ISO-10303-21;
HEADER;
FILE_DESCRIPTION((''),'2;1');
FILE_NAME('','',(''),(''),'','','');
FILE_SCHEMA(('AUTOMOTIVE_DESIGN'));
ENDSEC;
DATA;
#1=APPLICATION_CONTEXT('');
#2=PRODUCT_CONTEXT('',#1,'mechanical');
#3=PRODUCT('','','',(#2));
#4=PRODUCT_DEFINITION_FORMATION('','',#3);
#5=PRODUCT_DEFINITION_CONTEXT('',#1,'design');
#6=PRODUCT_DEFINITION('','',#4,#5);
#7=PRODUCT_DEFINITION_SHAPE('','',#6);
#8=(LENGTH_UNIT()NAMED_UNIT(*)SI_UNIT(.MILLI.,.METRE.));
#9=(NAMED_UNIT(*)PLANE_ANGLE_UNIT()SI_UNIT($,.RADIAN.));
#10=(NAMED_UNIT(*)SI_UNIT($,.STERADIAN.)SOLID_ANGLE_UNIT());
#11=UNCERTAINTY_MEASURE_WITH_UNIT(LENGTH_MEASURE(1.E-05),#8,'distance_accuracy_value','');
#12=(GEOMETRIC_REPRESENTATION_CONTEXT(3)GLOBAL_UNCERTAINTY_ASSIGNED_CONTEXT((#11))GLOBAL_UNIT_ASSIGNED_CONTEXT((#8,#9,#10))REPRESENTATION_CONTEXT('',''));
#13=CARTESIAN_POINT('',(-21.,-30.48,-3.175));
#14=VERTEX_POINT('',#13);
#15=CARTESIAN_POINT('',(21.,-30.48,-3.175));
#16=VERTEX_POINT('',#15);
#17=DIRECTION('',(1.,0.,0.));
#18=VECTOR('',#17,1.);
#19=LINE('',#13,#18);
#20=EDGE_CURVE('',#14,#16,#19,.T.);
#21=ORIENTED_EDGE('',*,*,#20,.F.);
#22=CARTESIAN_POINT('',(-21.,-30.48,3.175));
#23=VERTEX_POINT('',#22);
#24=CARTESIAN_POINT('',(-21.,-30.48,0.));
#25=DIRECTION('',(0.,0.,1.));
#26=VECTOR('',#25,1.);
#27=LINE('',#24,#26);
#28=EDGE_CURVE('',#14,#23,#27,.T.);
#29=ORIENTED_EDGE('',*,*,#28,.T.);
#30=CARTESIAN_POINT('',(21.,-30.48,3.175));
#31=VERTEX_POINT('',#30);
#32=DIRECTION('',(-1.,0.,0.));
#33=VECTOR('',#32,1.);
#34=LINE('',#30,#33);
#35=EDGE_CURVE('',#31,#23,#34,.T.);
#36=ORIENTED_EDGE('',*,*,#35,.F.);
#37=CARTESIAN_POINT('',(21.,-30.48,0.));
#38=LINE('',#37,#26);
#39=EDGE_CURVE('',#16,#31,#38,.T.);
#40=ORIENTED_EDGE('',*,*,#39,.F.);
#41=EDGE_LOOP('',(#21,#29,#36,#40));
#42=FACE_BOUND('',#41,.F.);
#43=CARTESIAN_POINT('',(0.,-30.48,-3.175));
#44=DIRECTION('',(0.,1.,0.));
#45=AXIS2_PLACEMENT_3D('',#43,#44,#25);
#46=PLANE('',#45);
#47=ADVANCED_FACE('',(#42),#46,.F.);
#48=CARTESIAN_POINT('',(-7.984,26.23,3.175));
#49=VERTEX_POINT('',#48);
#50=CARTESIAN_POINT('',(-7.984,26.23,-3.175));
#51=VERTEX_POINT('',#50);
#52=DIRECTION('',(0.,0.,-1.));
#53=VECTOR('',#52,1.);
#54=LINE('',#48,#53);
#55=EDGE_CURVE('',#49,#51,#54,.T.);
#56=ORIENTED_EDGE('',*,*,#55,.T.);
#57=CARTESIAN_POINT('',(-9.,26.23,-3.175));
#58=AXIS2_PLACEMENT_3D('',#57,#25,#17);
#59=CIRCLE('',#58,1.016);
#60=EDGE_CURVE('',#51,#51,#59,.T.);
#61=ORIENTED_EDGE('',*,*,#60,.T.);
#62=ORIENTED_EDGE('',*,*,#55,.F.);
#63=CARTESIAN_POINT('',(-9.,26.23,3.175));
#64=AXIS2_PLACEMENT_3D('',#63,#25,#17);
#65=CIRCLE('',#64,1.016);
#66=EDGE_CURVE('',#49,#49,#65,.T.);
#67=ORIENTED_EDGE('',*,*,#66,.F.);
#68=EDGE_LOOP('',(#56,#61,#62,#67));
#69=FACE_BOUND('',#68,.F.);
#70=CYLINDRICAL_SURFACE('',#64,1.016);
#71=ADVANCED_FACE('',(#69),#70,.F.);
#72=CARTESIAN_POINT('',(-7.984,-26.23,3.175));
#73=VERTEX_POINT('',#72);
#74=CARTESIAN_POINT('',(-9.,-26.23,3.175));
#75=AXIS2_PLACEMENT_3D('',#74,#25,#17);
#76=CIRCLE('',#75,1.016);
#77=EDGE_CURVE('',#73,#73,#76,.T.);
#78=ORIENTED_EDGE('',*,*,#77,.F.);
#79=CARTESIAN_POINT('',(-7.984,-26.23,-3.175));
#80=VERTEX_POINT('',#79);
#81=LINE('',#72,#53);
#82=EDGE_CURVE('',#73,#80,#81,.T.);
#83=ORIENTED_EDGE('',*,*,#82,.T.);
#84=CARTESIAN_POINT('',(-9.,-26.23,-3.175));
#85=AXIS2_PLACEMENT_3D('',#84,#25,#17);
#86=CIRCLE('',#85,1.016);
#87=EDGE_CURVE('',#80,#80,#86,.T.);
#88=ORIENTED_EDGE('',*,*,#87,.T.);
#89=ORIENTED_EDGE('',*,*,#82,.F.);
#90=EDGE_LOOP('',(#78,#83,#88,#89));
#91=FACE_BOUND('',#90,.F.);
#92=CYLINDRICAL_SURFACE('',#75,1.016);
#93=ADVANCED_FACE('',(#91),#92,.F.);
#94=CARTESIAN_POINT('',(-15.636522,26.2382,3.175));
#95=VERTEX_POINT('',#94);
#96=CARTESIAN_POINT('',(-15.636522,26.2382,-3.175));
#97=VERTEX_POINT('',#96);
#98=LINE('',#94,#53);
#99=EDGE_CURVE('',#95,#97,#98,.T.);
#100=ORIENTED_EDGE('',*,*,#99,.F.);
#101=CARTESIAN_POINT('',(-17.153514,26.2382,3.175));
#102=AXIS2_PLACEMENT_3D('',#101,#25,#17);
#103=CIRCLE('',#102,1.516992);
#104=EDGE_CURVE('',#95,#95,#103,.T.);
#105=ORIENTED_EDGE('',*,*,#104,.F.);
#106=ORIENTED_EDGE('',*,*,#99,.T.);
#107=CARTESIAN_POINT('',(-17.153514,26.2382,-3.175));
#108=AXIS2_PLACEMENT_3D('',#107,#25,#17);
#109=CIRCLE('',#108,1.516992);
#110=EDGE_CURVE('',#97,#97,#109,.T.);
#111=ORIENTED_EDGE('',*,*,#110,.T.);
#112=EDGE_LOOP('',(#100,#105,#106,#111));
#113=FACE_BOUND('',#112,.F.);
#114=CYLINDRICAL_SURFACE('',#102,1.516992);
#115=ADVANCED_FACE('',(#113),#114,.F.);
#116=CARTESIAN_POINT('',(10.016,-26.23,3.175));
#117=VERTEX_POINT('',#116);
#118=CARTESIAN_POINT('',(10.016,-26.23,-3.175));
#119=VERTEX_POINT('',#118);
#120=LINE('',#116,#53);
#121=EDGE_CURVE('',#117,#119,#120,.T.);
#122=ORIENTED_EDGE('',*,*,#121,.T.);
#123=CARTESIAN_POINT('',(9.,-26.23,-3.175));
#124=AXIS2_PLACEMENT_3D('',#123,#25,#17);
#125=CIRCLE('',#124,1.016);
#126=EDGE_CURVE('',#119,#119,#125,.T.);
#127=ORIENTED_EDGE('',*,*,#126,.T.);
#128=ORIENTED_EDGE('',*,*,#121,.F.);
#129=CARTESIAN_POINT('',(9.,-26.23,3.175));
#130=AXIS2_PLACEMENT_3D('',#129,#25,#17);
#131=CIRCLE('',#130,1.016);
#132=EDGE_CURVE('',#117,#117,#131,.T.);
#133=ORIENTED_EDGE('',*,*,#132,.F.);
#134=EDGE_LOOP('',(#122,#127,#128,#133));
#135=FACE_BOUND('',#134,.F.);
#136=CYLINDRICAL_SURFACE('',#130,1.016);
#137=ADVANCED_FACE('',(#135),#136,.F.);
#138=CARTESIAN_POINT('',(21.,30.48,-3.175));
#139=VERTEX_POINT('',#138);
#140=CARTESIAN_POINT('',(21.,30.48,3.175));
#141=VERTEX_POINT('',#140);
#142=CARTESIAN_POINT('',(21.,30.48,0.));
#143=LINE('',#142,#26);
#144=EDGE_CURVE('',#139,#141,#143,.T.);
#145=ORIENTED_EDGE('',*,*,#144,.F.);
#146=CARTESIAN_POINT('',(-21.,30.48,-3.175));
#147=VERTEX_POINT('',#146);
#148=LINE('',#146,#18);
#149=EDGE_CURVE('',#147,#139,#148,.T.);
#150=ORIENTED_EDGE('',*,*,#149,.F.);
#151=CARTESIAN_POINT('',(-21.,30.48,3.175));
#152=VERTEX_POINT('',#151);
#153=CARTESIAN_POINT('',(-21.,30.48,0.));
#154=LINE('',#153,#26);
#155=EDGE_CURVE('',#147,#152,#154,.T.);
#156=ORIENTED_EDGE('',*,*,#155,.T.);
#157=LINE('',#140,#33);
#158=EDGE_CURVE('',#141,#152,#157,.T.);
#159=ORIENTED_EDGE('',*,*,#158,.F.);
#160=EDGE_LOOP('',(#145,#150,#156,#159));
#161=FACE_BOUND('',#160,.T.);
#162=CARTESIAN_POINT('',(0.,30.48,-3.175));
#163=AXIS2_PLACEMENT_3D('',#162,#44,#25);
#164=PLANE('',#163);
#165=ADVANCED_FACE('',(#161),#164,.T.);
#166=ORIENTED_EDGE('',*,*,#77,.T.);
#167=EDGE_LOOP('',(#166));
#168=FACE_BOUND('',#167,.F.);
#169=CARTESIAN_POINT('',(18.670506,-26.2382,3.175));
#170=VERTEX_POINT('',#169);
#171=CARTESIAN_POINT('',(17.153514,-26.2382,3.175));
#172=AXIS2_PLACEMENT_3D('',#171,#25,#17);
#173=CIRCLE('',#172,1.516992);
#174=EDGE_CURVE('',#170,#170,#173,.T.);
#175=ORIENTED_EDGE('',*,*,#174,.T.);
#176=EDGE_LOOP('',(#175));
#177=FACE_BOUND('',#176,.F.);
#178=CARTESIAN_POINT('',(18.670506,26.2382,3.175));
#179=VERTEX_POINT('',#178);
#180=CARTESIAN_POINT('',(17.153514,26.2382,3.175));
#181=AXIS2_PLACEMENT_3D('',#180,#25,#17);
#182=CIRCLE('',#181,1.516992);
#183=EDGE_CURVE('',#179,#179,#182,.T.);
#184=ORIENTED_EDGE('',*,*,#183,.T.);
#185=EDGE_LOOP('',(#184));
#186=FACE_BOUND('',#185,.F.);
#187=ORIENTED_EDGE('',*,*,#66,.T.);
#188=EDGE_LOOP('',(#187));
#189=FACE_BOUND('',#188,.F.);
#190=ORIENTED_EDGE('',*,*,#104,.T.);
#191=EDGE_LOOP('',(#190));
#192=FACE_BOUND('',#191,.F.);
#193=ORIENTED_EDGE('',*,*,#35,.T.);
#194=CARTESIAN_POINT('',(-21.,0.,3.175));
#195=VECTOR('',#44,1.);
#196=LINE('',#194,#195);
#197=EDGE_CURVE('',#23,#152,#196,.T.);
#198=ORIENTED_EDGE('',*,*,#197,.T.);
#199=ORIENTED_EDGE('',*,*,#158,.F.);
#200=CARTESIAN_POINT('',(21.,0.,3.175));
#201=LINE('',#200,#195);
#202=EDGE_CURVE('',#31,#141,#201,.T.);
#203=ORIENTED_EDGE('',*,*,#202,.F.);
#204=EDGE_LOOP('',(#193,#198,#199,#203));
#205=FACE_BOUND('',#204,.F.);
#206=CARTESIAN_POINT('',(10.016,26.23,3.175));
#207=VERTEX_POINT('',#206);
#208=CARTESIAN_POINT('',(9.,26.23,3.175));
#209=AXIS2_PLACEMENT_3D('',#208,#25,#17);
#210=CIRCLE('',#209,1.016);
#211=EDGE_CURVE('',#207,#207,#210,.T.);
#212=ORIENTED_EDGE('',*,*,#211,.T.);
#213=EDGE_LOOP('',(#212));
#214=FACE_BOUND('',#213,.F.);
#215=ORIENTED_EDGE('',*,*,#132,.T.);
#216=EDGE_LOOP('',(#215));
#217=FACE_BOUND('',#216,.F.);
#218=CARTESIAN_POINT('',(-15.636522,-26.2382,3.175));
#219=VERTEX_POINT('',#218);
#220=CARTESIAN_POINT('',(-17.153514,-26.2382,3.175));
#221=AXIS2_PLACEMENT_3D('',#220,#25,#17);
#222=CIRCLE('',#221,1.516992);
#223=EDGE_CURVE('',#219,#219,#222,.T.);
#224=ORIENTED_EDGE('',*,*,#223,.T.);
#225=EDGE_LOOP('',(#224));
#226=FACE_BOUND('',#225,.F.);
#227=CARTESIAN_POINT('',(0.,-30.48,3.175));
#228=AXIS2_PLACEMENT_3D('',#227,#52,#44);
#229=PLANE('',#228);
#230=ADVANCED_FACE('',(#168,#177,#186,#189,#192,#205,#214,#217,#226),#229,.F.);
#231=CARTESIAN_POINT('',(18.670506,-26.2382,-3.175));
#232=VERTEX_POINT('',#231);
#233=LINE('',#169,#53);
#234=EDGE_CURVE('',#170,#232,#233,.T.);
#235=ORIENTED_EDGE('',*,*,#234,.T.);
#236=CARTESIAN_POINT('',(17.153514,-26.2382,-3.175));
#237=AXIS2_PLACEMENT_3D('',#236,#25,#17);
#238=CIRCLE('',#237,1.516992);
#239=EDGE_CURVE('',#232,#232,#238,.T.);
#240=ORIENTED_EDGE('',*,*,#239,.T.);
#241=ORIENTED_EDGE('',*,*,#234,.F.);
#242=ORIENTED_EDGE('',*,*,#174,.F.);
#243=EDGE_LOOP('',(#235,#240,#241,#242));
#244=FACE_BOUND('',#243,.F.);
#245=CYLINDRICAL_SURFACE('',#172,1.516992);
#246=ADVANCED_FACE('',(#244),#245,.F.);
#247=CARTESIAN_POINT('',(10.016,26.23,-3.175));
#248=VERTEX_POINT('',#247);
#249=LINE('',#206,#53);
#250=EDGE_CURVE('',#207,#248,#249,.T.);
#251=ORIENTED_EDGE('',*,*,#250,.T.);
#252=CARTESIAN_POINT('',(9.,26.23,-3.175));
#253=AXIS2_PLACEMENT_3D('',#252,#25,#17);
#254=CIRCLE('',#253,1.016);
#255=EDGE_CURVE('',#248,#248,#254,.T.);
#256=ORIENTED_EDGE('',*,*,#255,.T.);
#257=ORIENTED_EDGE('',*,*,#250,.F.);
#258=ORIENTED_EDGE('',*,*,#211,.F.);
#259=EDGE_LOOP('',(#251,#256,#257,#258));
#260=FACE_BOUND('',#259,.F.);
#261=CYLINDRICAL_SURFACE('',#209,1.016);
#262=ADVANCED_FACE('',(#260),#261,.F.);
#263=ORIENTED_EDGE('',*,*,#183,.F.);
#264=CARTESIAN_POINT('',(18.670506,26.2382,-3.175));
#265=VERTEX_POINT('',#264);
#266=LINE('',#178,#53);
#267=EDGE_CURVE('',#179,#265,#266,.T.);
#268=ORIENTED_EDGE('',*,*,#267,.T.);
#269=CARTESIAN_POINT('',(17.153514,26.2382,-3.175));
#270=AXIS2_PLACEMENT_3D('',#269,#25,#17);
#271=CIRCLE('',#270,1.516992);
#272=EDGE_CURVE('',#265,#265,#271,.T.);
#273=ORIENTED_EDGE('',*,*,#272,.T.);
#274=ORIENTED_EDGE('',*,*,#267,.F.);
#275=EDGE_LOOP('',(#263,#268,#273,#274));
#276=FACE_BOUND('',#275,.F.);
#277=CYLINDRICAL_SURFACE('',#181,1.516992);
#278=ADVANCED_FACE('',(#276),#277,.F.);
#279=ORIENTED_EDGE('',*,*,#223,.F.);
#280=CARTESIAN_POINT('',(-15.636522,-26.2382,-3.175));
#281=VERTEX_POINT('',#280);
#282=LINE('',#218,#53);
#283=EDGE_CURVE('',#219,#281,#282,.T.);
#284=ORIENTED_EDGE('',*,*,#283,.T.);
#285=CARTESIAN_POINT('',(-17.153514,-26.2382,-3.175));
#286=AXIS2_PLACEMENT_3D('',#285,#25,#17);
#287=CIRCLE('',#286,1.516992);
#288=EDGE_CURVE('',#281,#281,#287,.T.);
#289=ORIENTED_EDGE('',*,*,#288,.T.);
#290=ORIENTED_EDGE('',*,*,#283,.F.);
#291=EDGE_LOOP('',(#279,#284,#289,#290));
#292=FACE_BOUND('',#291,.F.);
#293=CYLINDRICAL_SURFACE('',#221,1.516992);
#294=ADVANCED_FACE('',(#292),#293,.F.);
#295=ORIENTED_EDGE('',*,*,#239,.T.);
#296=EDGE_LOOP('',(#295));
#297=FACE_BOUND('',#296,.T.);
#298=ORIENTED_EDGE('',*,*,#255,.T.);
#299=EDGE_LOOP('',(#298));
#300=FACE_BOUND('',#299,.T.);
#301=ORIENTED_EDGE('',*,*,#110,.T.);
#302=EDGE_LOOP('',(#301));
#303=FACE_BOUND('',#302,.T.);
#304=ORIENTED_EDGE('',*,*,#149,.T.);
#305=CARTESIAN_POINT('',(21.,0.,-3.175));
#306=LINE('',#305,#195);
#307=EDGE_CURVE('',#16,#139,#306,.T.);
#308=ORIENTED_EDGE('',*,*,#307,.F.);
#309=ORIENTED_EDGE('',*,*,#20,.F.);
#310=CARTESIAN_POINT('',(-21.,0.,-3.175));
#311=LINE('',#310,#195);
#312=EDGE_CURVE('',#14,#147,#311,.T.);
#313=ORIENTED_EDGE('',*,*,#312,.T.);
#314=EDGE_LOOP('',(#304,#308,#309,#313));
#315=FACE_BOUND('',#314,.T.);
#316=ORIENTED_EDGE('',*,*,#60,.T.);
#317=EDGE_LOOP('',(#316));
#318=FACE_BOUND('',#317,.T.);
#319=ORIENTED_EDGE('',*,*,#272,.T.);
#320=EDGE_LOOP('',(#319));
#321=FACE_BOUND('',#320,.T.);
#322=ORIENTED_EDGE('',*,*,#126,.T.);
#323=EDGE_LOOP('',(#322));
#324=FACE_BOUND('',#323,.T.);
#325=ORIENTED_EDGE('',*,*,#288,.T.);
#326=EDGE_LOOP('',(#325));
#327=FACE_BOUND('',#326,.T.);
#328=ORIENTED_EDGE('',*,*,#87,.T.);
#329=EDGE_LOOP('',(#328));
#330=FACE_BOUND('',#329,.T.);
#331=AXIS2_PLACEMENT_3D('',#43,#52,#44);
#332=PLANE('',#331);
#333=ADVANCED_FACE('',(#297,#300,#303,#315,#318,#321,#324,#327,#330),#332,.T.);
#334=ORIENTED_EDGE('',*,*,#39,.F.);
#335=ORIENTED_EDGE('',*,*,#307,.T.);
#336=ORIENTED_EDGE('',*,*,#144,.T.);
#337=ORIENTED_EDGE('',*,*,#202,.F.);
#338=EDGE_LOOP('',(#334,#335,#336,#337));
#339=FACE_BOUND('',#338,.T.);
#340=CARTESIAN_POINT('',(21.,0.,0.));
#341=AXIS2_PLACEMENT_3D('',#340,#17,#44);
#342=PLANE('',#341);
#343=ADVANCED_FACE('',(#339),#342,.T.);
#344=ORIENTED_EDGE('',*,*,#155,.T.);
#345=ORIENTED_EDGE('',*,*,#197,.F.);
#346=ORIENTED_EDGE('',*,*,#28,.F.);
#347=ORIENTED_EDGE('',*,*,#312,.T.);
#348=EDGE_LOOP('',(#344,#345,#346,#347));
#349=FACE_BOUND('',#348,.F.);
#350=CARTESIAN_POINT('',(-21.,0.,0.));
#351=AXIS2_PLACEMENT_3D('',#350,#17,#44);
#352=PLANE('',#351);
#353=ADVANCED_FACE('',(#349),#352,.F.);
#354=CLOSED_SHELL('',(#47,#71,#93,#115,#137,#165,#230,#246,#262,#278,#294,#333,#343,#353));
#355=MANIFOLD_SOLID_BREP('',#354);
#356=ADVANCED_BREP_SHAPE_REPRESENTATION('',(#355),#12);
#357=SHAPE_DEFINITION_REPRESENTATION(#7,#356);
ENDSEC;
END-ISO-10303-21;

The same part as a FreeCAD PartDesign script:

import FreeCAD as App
import Part
import Sketcher
from FreeCAD import Vector
Q = App.Units.Quantity


def add_polygon(sketch, points):
    """Adds a closed chain of lines whose ends are joined by coincident constraints."""
    first, n = sketch.GeometryCount, len(points)
    for a, b in zip(points, points[1:] + points[:1]):
        sketch.addGeometry(Part.LineSegment(App.Vector(*a, 0), App.Vector(*b, 0)), False)
    for i in range(n):
        sketch.addConstraint(Sketcher.Constraint("Coincident", first + i, 2, first + (i + 1) % n, 1))

doc = App.newDocument("Part")
body = doc.addObject("PartDesign::Body", "Body")

# Sketch on YZ plane
sketch1 = body.newObject("Sketcher::SketchObject", "Sketch")
sketch1.AttachmentSupport = (doc.getObject("YZ_Plane"), [""])
sketch1.MapMode = "FlatFace"
add_polygon(sketch1, [(-30.48, 3.175), (-30.48, -3.175), (30.48, -3.175), (30.48, 3.175)])  # lines 0-3
sketch1.addConstraint([
    Sketcher.Constraint("Vertical", 0),
    Sketcher.Constraint("Horizontal", 1),
    Sketcher.Constraint("Vertical", 2),
    Sketcher.Constraint("Horizontal", 3),
    Sketcher.Constraint("Symmetric", 0, 2, 2, 2, -1, 1),
    Sketcher.Constraint("DistanceX", 1, 1, 1, 2, Q("2.4 in")),
    Sketcher.Constraint("DistanceY", 0, 2, 0, 1, Q("0.25 in")),
])
pad1 = body.newObject("PartDesign::Pad", "Pad")
pad1.Profile = sketch1
pad1.Length = 42
pad1.Midplane = True

# Sketch on XY plane
sketch2 = body.newObject("Sketcher::SketchObject", "Sketch001")
sketch2.AttachmentSupport = (doc.getObject("XY_Plane"), [""])
sketch2.MapMode = "FlatFace"
sketch2.AttachmentOffset = App.Placement(Vector(0, 0, 0.125 * 25.4), App.Rotation())
sketch2.addGeometry([
    Part.Circle(Vector(-9, -26.23, 0), Vector(0, 0, 1), 1.016),  # 0
    Part.Circle(Vector(9, -26.23, 0), Vector(0, 0, 1), 1.016),  # 1
    Part.Circle(Vector(9, 26.23, 0), Vector(0, 0, 1), 1.016),  # 2
    Part.Circle(Vector(-9, 26.23, 0), Vector(0, 0, 1), 1.016),  # 3
    Part.Circle(Vector(-17.153514, 26.2382, 0), Vector(0, 0, 1), 1.516992),  # 4
    Part.Circle(Vector(17.153514, 26.2382, 0), Vector(0, 0, 1), 1.516992),  # 5
    Part.Circle(Vector(17.153514, -26.2382, 0), Vector(0, 0, 1), 1.516992),  # 6
    Part.Circle(Vector(-17.153514, -26.2382, 0), Vector(0, 0, 1), 1.516992),  # 7
], False)
sketch2.addConstraint([
    Sketcher.Constraint("Equal", 0, 1),
    Sketcher.Constraint("Equal", 1, 2),
    Sketcher.Constraint("Equal", 2, 3),
    Sketcher.Constraint("Equal", 4, 5),
    Sketcher.Constraint("Equal", 5, 6),
    Sketcher.Constraint("Equal", 6, 7),
    Sketcher.Constraint("Symmetric", 0, 3, 2, 3, -1, 1),
    Sketcher.Constraint("Symmetric", 1, 3, 3, 3, -1, 1),
    Sketcher.Constraint("Symmetric", 4, 3, 6, 3, -1, 1),
    Sketcher.Constraint("Symmetric", 5, 3, 7, 3, -1, 1),
    Sketcher.Constraint("Symmetric", 0, 3, 1, 3, -2),
    Sketcher.Constraint("Symmetric", 4, 3, 5, 3, -2),
    Sketcher.Constraint("Diameter", 0, Q("0.08 in")),
    Sketcher.Constraint("DistanceY", -1, 1, 4, 3, Q("1.033 in")),
    Sketcher.Constraint("Diameter", 4, 3.033984),
    Sketcher.Constraint("DistanceX", 0, 3, -1, 1, 9.0),
    Sketcher.Constraint("DistanceY", 0, 3, -1, 1, 26.23),
    Sketcher.Constraint("DistanceX", 4, 3, 5, 3, 34.307028),
])
pocket1 = body.newObject("PartDesign::Pocket", "Pocket")
pocket1.Profile = sketch2
pocket1.Type = "ThroughAll"

doc.recompute()
